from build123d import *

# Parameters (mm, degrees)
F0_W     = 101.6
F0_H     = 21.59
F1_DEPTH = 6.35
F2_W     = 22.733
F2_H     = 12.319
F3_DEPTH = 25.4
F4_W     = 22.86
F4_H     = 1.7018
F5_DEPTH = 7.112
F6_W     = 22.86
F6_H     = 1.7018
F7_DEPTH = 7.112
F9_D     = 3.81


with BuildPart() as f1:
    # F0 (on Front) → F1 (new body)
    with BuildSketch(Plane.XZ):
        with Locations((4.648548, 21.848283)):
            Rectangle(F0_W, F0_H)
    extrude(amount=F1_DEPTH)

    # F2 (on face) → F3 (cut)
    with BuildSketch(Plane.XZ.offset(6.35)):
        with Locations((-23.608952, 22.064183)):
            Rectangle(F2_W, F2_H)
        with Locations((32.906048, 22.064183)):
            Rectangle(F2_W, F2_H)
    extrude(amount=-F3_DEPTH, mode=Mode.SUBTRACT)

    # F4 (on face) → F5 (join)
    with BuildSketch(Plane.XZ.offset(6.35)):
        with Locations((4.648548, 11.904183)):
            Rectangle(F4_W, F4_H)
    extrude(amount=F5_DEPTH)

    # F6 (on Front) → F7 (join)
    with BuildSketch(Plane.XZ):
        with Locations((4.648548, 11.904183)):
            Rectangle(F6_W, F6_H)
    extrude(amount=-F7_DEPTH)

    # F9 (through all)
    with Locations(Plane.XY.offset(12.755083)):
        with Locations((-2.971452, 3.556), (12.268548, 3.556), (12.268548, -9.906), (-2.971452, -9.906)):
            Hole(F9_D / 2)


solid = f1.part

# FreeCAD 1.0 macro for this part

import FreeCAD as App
import Part
import Sketcher
from FreeCAD import Vector
Q = App.Units.Quantity

doc = App.newDocument("Part")
body = doc.addObject("PartDesign::Body", "Body")

# Sketch on XZ plane
sketch1 = doc.addObject("Sketcher::SketchObject", "Sketch")
body.addObject(sketch1)
sketch1.AttachmentSupport = (doc.XZ_Plane, [""])
sketch1.MapMode = "FlatFace"
sketch1.addGeometry([
    Part.LineSegment(Vector(-46, 33, 0), Vector(-46, 11, 0)),
    Part.LineSegment(Vector(-46, 11, 0), Vector(55, 11, 0)),
    Part.LineSegment(Vector(55, 11, 0), Vector(55, 33, 0)),
    Part.LineSegment(Vector(55, 33, 0), Vector(-46, 33, 0)),
], False)
sketch1.addConstraint([
    Sketcher.Constraint("Coincident", 0, 2, 1, 1),
    Sketcher.Constraint("Coincident", 1, 2, 2, 1),
    Sketcher.Constraint("Coincident", 2, 2, 3, 1),
    Sketcher.Constraint("Coincident", 3, 2, 0, 1),
    Sketcher.Constraint("Vertical", 0),
    Sketcher.Constraint("Horizontal", 1),
    Sketcher.Constraint("Vertical", 2),
    Sketcher.Constraint("Horizontal", 3),
    Sketcher.Constraint("DistanceX", 1, 1, 1, 2, Q("4 in")),
    Sketcher.Constraint("DistanceY", 0, 2, 0, 1, Q("0.85 in")),
    Sketcher.Constraint("DistanceX", -1, 1, 1, 2, Q("55.448548 mm")),
    Sketcher.Constraint("DistanceY", -1, 1, 0, 2, Q("11.053283 mm")),
])
pad1 = doc.addObject("PartDesign::Pad", "Pad")
body.addObject(pad1)
pad1.Profile = sketch1
pad1.Length = Q("0.25 in")

# Sketch on XZ plane
sketch2 = doc.addObject("Sketcher::SketchObject", "Sketch001")
body.addObject(sketch2)
sketch2.AttachmentSupport = (doc.XZ_Plane, [""])
sketch2.MapMode = "FlatFace"
sketch2.AttachmentOffset = App.Placement(Vector(0, 0, 0.25 * 25.4), App.Rotation())
sketch2.addGeometry([
    Part.LineSegment(Vector(-35, 28, 0), Vector(-35, 16, 0)),  # 0
    Part.LineSegment(Vector(-35, 16, 0), Vector(-12, 16, 0)),  # 1
    Part.LineSegment(Vector(-12, 16, 0), Vector(-12, 28, 0)),  # 2
    Part.LineSegment(Vector(-12, 28, 0), Vector(-35, 28, 0)),  # 3
    Part.LineSegment(Vector(22, 28, 0), Vector(22, 16, 0)),  # 4
    Part.LineSegment(Vector(22, 16, 0), Vector(44, 16, 0)),  # 5
    Part.LineSegment(Vector(44, 16, 0), Vector(44, 28, 0)),  # 6
    Part.LineSegment(Vector(44, 28, 0), Vector(22, 28, 0)),  # 7
], False)
sketch2.addConstraint([
    Sketcher.Constraint("Coincident", 0, 2, 1, 1),
    Sketcher.Constraint("Coincident", 1, 2, 2, 1),
    Sketcher.Constraint("Coincident", 2, 2, 3, 1),
    Sketcher.Constraint("Coincident", 3, 2, 0, 1),
    Sketcher.Constraint("Coincident", 4, 2, 5, 1),
    Sketcher.Constraint("Coincident", 5, 2, 6, 1),
    Sketcher.Constraint("Coincident", 6, 2, 7, 1),
    Sketcher.Constraint("Coincident", 7, 2, 4, 1),
    Sketcher.Constraint("Vertical", 0),
    Sketcher.Constraint("Horizontal", 1),
    Sketcher.Constraint("Vertical", 2),
    Sketcher.Constraint("Horizontal", 3),
    Sketcher.Constraint("Vertical", 4),
    Sketcher.Constraint("Horizontal", 5),
    Sketcher.Constraint("Vertical", 6),
    Sketcher.Constraint("Horizontal", 7),
    Sketcher.Constraint("Horizontal", 1, 2, 4, 2),
    Sketcher.Constraint("Horizontal", 3, 2, 6, 2),
    Sketcher.Constraint("Equal", 3, 5),
    Sketcher.Constraint("DistanceX", 1, 1, 1, 2, Q("0.895 in")),
    Sketcher.Constraint("DistanceY", 0, 2, 0, 1, Q("0.485 in")),
    Sketcher.Constraint("DistanceX", 1, 2, 4, 2, Q("1.33 in")),
    Sketcher.Constraint("DistanceX", 0, 2, -1, 1, Q("34.975452 mm")),
    Sketcher.Constraint("DistanceY", -1, 1, 0, 2, Q("15.904683 mm")),
])
pocket1 = doc.addObject("PartDesign::Pocket", "Pocket")
body.addObject(pocket1)
pocket1.Profile = sketch2
pocket1.Length = Q("1 in")

# Sketch on XZ plane
sketch3 = doc.addObject("Sketcher::SketchObject", "Sketch002")
body.addObject(sketch3)
sketch3.AttachmentSupport = (doc.XZ_Plane, [""])
sketch3.MapMode = "FlatFace"
sketch3.AttachmentOffset = App.Placement(Vector(0, 0, 0.25 * 25.4), App.Rotation())
sketch3.addGeometry([
    Part.LineSegment(Vector(-6.8, 12.8, 0), Vector(-6.8, 11.1, 0)),
    Part.LineSegment(Vector(-6.8, 11.1, 0), Vector(16.1, 11.1, 0)),
    Part.LineSegment(Vector(16.1, 11.1, 0), Vector(16.1, 12.8, 0)),
    Part.LineSegment(Vector(16.1, 12.8, 0), Vector(-6.8, 12.8, 0)),
], False)
sketch3.addConstraint([
    Sketcher.Constraint("Coincident", 0, 2, 1, 1),
    Sketcher.Constraint("Coincident", 1, 2, 2, 1),
    Sketcher.Constraint("Coincident", 2, 2, 3, 1),
    Sketcher.Constraint("Coincident", 3, 2, 0, 1),
    Sketcher.Constraint("Vertical", 0),
    Sketcher.Constraint("Horizontal", 1),
    Sketcher.Constraint("Vertical", 2),
    Sketcher.Constraint("Horizontal", 3),
    Sketcher.Constraint("DistanceX", 1, 1, 1, 2, Q("0.9 in")),
    Sketcher.Constraint("DistanceY", 0, 2, 0, 1, Q("0.067 in")),
    Sketcher.Constraint("DistanceX", 0, 2, -1, 1, Q("6.781452 mm")),
    Sketcher.Constraint("DistanceY", -1, 1, 0, 2, Q("11.053283 mm")),
])
pad2 = doc.addObject("PartDesign::Pad", "Pad001")
body.addObject(pad2)
pad2.Profile = sketch3
pad2.Length = Q("0.28 in")

# Sketch on XZ plane
sketch4 = doc.addObject("Sketcher::SketchObject", "Sketch003")
body.addObject(sketch4)
sketch4.AttachmentSupport = (doc.XZ_Plane, [""])
sketch4.MapMode = "FlatFace"
sketch4.addGeometry([
    Part.LineSegment(Vector(-6.8, 12.8, 0), Vector(-6.8, 11.1, 0)),
    Part.LineSegment(Vector(-6.8, 11.1, 0), Vector(16.1, 11.1, 0)),
    Part.LineSegment(Vector(16.1, 11.1, 0), Vector(16.1, 12.8, 0)),
    Part.LineSegment(Vector(16.1, 12.8, 0), Vector(-6.8, 12.8, 0)),
], False)
sketch4.addConstraint([
    Sketcher.Constraint("Coincident", 0, 2, 1, 1),
    Sketcher.Constraint("Coincident", 1, 2, 2, 1),
    Sketcher.Constraint("Coincident", 2, 2, 3, 1),
    Sketcher.Constraint("Coincident", 3, 2, 0, 1),
    Sketcher.Constraint("Vertical", 0),
    Sketcher.Constraint("Horizontal", 1),
    Sketcher.Constraint("Vertical", 2),
    Sketcher.Constraint("Horizontal", 3),
    Sketcher.Constraint("DistanceX", 1, 1, 1, 2, Q("0.9 in")),
    Sketcher.Constraint("DistanceY", 0, 2, 0, 1, Q("0.067 in")),
    Sketcher.Constraint("DistanceX", 0, 2, -1, 1, Q("6.781452 mm")),
    Sketcher.Constraint("DistanceY", -1, 1, 0, 2, Q("11.053283 mm")),
])
pad3 = doc.addObject("PartDesign::Pad", "Pad002")
body.addObject(pad3)
pad3.Profile = sketch4
pad3.Length = Q("0.28 in")
pad3.Reversed = True

# Sketch on XY plane
sketch5 = doc.addObject("Sketcher::SketchObject", "Sketch004")
body.addObject(sketch5)
sketch5.AttachmentSupport = (doc.XY_Plane, [""])
sketch5.MapMode = "FlatFace"
sketch5.AttachmentOffset = App.Placement(Vector(0, 0, 12.755083), App.Rotation())
sketch5.addGeometry([
    Part.Circle(Vector(-3, 3.6, 0), Vector(0, 0, 1), 1.9),
    Part.Circle(Vector(12.3, 3.6, 0), Vector(0, 0, 1), 1.9),
    Part.Circle(Vector(12.3, -9.9, 0), Vector(0, 0, 1), 1.9),
    Part.Circle(Vector(-3, -9.9, 0), Vector(0, 0, 1), 1.9),
], False)
sketch5.addConstraint([
    Sketcher.Constraint("Equal", 0, 1),
    Sketcher.Constraint("Equal", 1, 2),
    Sketcher.Constraint("Equal", 2, 3),
    Sketcher.Constraint("Horizontal", 0, 3, 1, 3),
    Sketcher.Constraint("Horizontal", 2, 3, 3, 3),
    Sketcher.Constraint("Vertical", 1, 3, 2, 3),
    Sketcher.Constraint("Vertical", 0, 3, 3, 3),
    Sketcher.Constraint("Diameter", 0, Q("0.15 in")),
    Sketcher.Constraint("DistanceX", 0, 3, 1, 3, Q("0.6 in")),
    Sketcher.Constraint("DistanceY", -1, 1, 0, 3, Q("0.14 in")),
    Sketcher.Constraint("DistanceY", 2, 3, -1, 1, Q("0.39 in")),
    Sketcher.Constraint("DistanceX", 0, 3, -1, 1, Q("2.971452 mm")),
])
doc.recompute()
hole = doc.addObject("PartDesign::Hole", "Hole")
body.addObject(hole)
hole.Profile = sketch5
hole.ThreadType = "None"
hole.Diameter = Q("0.15 in")
hole.DepthType = "ThroughAll"

doc.recompute()
